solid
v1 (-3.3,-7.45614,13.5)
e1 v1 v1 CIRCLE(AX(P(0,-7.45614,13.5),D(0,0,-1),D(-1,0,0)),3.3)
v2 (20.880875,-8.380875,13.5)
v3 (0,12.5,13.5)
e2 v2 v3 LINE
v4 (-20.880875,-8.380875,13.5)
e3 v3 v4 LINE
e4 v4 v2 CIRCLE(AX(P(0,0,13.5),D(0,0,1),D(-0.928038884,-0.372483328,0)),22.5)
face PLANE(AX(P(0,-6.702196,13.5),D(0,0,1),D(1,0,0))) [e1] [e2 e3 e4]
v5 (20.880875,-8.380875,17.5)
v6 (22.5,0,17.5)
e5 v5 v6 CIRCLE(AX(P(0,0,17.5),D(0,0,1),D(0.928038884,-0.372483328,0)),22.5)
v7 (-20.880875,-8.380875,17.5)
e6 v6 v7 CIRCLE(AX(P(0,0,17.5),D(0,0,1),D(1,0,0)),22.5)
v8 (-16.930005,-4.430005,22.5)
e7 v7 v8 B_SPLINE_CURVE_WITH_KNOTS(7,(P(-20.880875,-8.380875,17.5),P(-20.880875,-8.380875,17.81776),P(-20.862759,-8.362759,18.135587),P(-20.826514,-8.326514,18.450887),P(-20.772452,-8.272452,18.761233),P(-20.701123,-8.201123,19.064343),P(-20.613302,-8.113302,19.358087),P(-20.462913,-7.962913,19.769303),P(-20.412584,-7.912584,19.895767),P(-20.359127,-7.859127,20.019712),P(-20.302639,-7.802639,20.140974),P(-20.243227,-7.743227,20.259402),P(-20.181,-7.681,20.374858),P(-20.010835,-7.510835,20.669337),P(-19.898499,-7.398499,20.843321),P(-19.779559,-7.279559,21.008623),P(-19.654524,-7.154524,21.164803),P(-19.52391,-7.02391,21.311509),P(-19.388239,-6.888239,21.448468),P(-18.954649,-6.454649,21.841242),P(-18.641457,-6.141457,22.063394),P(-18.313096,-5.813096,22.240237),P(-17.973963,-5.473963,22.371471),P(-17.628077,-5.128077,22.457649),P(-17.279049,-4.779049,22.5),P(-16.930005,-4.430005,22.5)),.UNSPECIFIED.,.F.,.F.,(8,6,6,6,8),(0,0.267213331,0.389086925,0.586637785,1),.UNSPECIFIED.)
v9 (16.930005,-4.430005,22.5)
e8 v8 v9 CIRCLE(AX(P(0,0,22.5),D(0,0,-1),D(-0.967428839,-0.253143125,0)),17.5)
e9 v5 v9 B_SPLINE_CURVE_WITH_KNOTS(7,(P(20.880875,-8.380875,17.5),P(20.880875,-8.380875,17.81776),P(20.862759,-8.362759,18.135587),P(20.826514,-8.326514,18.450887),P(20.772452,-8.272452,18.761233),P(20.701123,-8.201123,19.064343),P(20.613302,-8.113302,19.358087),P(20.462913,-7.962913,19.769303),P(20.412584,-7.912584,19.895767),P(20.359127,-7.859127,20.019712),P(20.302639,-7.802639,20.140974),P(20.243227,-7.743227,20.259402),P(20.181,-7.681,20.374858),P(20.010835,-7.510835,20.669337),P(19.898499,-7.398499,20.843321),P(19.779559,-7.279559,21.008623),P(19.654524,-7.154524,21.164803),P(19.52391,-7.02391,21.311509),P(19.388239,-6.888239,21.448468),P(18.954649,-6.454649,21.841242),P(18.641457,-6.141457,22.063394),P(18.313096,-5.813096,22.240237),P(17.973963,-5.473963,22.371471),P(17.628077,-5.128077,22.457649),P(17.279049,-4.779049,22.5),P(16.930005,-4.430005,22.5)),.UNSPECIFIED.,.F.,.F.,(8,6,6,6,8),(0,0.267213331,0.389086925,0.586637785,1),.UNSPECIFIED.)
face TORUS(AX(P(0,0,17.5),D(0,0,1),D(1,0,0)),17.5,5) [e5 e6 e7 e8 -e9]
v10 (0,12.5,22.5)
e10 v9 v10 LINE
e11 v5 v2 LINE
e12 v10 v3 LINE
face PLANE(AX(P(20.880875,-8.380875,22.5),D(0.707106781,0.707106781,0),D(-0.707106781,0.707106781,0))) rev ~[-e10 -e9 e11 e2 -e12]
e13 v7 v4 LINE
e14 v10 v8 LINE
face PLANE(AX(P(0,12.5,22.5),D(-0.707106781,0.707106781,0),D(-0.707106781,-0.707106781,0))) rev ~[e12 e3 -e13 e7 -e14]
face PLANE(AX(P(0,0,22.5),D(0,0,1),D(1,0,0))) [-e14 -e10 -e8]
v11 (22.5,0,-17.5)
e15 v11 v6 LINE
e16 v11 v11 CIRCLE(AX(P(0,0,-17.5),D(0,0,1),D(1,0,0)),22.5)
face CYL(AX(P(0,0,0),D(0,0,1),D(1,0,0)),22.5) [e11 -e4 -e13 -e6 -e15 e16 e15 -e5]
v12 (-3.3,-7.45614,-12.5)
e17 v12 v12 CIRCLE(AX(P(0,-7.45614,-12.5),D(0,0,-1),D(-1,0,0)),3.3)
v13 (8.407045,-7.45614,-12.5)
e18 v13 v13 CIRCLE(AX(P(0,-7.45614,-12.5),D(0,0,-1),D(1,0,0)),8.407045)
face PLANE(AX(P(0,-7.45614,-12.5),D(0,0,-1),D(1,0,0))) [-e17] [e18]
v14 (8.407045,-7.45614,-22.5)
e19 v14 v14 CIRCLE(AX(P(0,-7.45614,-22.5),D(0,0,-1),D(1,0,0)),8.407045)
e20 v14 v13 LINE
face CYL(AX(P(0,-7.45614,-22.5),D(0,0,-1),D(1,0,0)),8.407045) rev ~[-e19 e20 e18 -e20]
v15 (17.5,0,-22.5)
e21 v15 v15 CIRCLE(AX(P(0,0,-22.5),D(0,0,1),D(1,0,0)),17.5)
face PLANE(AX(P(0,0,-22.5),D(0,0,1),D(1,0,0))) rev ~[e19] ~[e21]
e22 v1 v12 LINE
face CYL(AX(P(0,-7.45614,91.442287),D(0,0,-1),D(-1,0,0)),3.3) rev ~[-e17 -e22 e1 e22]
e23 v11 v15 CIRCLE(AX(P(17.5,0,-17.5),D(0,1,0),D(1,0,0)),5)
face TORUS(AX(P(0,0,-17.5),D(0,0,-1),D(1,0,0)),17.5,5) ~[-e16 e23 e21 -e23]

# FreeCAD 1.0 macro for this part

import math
import FreeCAD as App
import Part
import Sketcher
Q = App.Units.Quantity


def edges_at(feature, points):
    """Names of the edges that pass closest to the given points."""
    edges = feature.Shape.Edges
    near = lambda p: min(range(len(edges)), key=lambda i: edges[i].distToShape(Part.Vertex(*p))[0])
    return sorted({f"Edge{near(p) + 1}" for p in points})

doc = App.newDocument("Part")
body = doc.addObject("PartDesign::Body", "Body")

sketch1 = body.newObject("Sketcher::SketchObject", "Sketch")
sketch1.AttachmentSupport = (doc.getObject("XY_Plane"), [""])
sketch1.MapMode = "FlatFace"
sketch1.addGeometry(Part.Circle(App.Vector(0, 0, 0), App.Vector(0, 0, 1), 22), False)
sketch1.addConstraint([
    Sketcher.Constraint("Coincident", 0, 3, -1, 1),
    Sketcher.Constraint("Diameter", 0, Q("45 mm")),
])
pad1 = body.newObject("PartDesign::Pad", "Pad")
pad1.Profile = sketch1
pad1.Length = 45
pad1.Midplane = True

sketch2 = body.newObject("Sketcher::SketchObject", "Sketch001")
sketch2.AttachmentSupport = (doc.getObject("XY_Plane"), [""])
sketch2.MapMode = "FlatFace"
sketch2.AttachmentOffset = App.Placement(App.Vector(0, 0, 22.5), App.Rotation())
sketch2.addGeometry([
    Part.LineSegment(App.Vector(21, -8, 0), App.Vector(0, 12, 0)),
    Part.LineSegment(App.Vector(0, 12, 0), App.Vector(-21, -8, 0)),
    Part.ArcOfCircle(Part.Circle(App.Vector(0, 0, 0), App.Vector(0, 0, 1), 22), math.radians(-158), math.radians(-22)),
], False)
sketch2.addConstraint([
    Sketcher.Constraint("Coincident", 0, 2, 1, 1),
    Sketcher.Constraint("Coincident", 1, 2, 2, 1),
    Sketcher.Constraint("Coincident", 2, 2, 0, 1),
    Sketcher.Constraint("Coincident", 2, 3, -1, 1),
    Sketcher.Constraint("PointOnObject", 0, 2, -2),
    Sketcher.Constraint("Perpendicular", 0, 1),
    Sketcher.Constraint("Horizontal", 1, 2, 2, 2),
    Sketcher.Constraint("Radius", 2, Q("22.5 mm")),
    Sketcher.Constraint("DistanceY", -1, 1, 0, 2, Q("12.5 mm")),
])
pocket1 = body.newObject("PartDesign::Pocket", "Pocket")
pocket1.Profile = sketch2
pocket1.Length = 9
doc.recompute()

fillet = body.newObject("PartDesign::Fillet", "Fillet")
fillet.Base = (pocket1, edges_at(pocket1, [(-22.5, 0, -22.5)]))
fillet.Radius = 5
doc.recompute()

fillet2 = body.newObject("PartDesign::Fillet", "Fillet001")
fillet2.Base = (fillet, edges_at(fillet, [(-4.268, 22.092, 22.5)]))
fillet2.Radius = 5

sketch3 = body.newObject("Sketcher::SketchObject", "Sketch002")
sketch3.AttachmentSupport = (doc.getObject("XY_Plane"), [""])
sketch3.MapMode = "FlatFace"
sketch3.AttachmentOffset = App.Placement(App.Vector(0, 0, 13.5), App.Rotation())
sketch3.addGeometry(Part.Circle(App.Vector(0, -7.5, 0), App.Vector(0, 0, 1), 3.3), False)
sketch3.addConstraint([
    Sketcher.Constraint("PointOnObject", 0, 3, -2),
    Sketcher.Constraint("Diameter", 0, Q("6.6 mm")),
    Sketcher.Constraint("DistanceY", 0, 3, -1, 1, Q("7.45614 mm")),
])
doc.recompute()
hole = body.newObject("PartDesign::Hole", "Hole")
hole.Profile = sketch3
hole.ThreadType = "None"
hole.Diameter = 6.6
hole.DepthType = "ThroughAll"

sketch4 = body.newObject("Sketcher::SketchObject", "Sketch003")
sketch4.AttachmentSupport = (doc.getObject("XY_Plane"), [""])
sketch4.MapMode = "FlatFace"
sketch4.AttachmentOffset = App.Placement(App.Vector(0, 0, -22.5), App.Rotation())
sketch4.addGeometry([
    Part.Circle(App.Vector(0, -7.5, 0), App.Vector(0, 0, 1), 8.4),
    Part.Circle(App.Vector(0, -7.5, 0), App.Vector(0, 0, 1), 3.3),
], False)
sketch4.addConstraint([
    Sketcher.Constraint("Coincident", 1, 3, 0, 3),
    Sketcher.Constraint("PointOnObject", 0, 3, -2),
    Sketcher.Constraint("Diameter", 1, Q("6.6 mm")),
    Sketcher.Constraint("Diameter", 0, Q("16.814089 mm")),
    Sketcher.Constraint("DistanceY", 0, 3, -1, 1, Q("7.45614 mm")),
])
pocket2 = body.newObject("PartDesign::Pocket", "Pocket001")
pocket2.Profile = sketch4
pocket2.Length = 10
pocket2.Reversed = True

doc.recompute()
